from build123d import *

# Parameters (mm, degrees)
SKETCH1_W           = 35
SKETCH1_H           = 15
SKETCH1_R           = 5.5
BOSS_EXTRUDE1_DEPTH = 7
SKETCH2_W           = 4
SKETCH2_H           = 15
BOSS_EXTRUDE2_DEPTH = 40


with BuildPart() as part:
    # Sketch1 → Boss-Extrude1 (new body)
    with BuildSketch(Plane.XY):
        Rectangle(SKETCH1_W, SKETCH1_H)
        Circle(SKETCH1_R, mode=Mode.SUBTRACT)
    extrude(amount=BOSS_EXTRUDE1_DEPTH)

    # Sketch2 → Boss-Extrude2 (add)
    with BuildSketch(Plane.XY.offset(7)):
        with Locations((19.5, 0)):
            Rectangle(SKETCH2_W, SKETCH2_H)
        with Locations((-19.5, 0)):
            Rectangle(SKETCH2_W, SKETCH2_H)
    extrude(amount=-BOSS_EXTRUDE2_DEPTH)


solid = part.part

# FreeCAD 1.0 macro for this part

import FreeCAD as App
import Part
import Sketcher
Q = App.Units.Quantity

doc = App.newDocument("Part")
body = doc.addObject("PartDesign::Body", "Body")

# Sketch on XY plane
sketch1 = body.newObject("Sketcher::SketchObject", "Sketch")
sketch1.AttachmentSupport = (doc.getObject("XY_Plane"), [""])
sketch1.MapMode = "FlatFace"
sketch1.addGeometry([
    Part.LineSegment(App.Vector(-17.5, 7.5, 0), App.Vector(-17.5, -7.5, 0)),  # 0
    Part.LineSegment(App.Vector(-17.5, -7.5, 0), App.Vector(17.5, -7.5, 0)),  # 1
    Part.LineSegment(App.Vector(17.5, -7.5, 0), App.Vector(17.5, 7.5, 0)),  # 2
    Part.LineSegment(App.Vector(17.5, 7.5, 0), App.Vector(-17.5, 7.5, 0)),  # 3
    Part.Circle(App.Vector(0, 0, 0), App.Vector(0, 0, 1), 5.5),  # 4
], False)
sketch1.addConstraint([
    Sketcher.Constraint("Coincident", 0, 2, 1, 1),
    Sketcher.Constraint("Coincident", 1, 2, 2, 1),
    Sketcher.Constraint("Coincident", 2, 2, 3, 1),
    Sketcher.Constraint("Coincident", 3, 2, 0, 1),
    Sketcher.Constraint("Vertical", 0),
    Sketcher.Constraint("Horizontal", 1),
    Sketcher.Constraint("Vertical", 2),
    Sketcher.Constraint("Horizontal", 3),
    Sketcher.Constraint("Coincident", 4, 3, -1, 1),
    Sketcher.Constraint("Symmetric", 0, 2, 2, 2, -1, 1),
    Sketcher.Constraint("Diameter", 4, Q("11 mm")),
    Sketcher.Constraint("DistanceX", 1, 1, 1, 2, Q("35 mm")),
    Sketcher.Constraint("DistanceY", 0, 2, 0, 1, Q("15 mm")),
])
pad1 = body.newObject("PartDesign::Pad", "Pad")
pad1.Profile = sketch1
pad1.Length = 7

# Sketch on XY plane
sketch2 = body.newObject("Sketcher::SketchObject", "Sketch001")
sketch2.AttachmentSupport = (doc.getObject("XY_Plane"), [""])
sketch2.MapMode = "FlatFace"
sketch2.AttachmentOffset = App.Placement(App.Vector(0, 0, 7), App.Rotation())
sketch2.addGeometry([
    Part.LineSegment(App.Vector(17.5, 7.5, 0), App.Vector(17.5, -7.5, 0)),  # 0
    Part.LineSegment(App.Vector(17.5, -7.5, 0), App.Vector(21.5, -7.5, 0)),  # 1
    Part.LineSegment(App.Vector(21.5, -7.5, 0), App.Vector(21.5, 7.5, 0)),  # 2
    Part.LineSegment(App.Vector(21.5, 7.5, 0), App.Vector(17.5, 7.5, 0)),  # 3
    Part.LineSegment(App.Vector(-21.5, 7.5, 0), App.Vector(-21.5, -7.5, 0)),  # 4
    Part.LineSegment(App.Vector(-21.5, -7.5, 0), App.Vector(-17.5, -7.5, 0)),  # 5
    Part.LineSegment(App.Vector(-17.5, -7.5, 0), App.Vector(-17.5, 7.5, 0)),  # 6
    Part.LineSegment(App.Vector(-17.5, 7.5, 0), App.Vector(-21.5, 7.5, 0)),  # 7
], False)
sketch2.addConstraint([
    Sketcher.Constraint("Coincident", 0, 2, 1, 1),
    Sketcher.Constraint("Coincident", 1, 2, 2, 1),
    Sketcher.Constraint("Coincident", 2, 2, 3, 1),
    Sketcher.Constraint("Coincident", 3, 2, 0, 1),
    Sketcher.Constraint("Coincident", 4, 2, 5, 1),
    Sketcher.Constraint("Coincident", 5, 2, 6, 1),
    Sketcher.Constraint("Coincident", 6, 2, 7, 1),
    Sketcher.Constraint("Coincident", 7, 2, 4, 1),
    Sketcher.Constraint("Vertical", 0),
    Sketcher.Constraint("Horizontal", 1),
    Sketcher.Constraint("Vertical", 2),
    Sketcher.Constraint("Horizontal", 3),
    Sketcher.Constraint("Vertical", 4),
    Sketcher.Constraint("Horizontal", 5),
    Sketcher.Constraint("Vertical", 6),
    Sketcher.Constraint("Horizontal", 7),
    Sketcher.Constraint("Symmetric", 2, 2, 4, 2, -1, 1),
    Sketcher.Constraint("Symmetric", 0, 2, 6, 2, -1, 1),
    Sketcher.Constraint("Horizontal", 1, 2, 4, 2),
    Sketcher.Constraint("DistanceX", 1, 1, 1, 2, Q("4 mm")),
    Sketcher.Constraint("DistanceY", 0, 2, 0, 1, Q("15 mm")),
    Sketcher.Constraint("DistanceX", 4, 2, 0, 2, Q("39 mm")),
])
pad2 = body.newObject("PartDesign::Pad", "Pad001")
pad2.Profile = sketch2
pad2.Length = 40
pad2.Reversed = True

doc.recompute()
